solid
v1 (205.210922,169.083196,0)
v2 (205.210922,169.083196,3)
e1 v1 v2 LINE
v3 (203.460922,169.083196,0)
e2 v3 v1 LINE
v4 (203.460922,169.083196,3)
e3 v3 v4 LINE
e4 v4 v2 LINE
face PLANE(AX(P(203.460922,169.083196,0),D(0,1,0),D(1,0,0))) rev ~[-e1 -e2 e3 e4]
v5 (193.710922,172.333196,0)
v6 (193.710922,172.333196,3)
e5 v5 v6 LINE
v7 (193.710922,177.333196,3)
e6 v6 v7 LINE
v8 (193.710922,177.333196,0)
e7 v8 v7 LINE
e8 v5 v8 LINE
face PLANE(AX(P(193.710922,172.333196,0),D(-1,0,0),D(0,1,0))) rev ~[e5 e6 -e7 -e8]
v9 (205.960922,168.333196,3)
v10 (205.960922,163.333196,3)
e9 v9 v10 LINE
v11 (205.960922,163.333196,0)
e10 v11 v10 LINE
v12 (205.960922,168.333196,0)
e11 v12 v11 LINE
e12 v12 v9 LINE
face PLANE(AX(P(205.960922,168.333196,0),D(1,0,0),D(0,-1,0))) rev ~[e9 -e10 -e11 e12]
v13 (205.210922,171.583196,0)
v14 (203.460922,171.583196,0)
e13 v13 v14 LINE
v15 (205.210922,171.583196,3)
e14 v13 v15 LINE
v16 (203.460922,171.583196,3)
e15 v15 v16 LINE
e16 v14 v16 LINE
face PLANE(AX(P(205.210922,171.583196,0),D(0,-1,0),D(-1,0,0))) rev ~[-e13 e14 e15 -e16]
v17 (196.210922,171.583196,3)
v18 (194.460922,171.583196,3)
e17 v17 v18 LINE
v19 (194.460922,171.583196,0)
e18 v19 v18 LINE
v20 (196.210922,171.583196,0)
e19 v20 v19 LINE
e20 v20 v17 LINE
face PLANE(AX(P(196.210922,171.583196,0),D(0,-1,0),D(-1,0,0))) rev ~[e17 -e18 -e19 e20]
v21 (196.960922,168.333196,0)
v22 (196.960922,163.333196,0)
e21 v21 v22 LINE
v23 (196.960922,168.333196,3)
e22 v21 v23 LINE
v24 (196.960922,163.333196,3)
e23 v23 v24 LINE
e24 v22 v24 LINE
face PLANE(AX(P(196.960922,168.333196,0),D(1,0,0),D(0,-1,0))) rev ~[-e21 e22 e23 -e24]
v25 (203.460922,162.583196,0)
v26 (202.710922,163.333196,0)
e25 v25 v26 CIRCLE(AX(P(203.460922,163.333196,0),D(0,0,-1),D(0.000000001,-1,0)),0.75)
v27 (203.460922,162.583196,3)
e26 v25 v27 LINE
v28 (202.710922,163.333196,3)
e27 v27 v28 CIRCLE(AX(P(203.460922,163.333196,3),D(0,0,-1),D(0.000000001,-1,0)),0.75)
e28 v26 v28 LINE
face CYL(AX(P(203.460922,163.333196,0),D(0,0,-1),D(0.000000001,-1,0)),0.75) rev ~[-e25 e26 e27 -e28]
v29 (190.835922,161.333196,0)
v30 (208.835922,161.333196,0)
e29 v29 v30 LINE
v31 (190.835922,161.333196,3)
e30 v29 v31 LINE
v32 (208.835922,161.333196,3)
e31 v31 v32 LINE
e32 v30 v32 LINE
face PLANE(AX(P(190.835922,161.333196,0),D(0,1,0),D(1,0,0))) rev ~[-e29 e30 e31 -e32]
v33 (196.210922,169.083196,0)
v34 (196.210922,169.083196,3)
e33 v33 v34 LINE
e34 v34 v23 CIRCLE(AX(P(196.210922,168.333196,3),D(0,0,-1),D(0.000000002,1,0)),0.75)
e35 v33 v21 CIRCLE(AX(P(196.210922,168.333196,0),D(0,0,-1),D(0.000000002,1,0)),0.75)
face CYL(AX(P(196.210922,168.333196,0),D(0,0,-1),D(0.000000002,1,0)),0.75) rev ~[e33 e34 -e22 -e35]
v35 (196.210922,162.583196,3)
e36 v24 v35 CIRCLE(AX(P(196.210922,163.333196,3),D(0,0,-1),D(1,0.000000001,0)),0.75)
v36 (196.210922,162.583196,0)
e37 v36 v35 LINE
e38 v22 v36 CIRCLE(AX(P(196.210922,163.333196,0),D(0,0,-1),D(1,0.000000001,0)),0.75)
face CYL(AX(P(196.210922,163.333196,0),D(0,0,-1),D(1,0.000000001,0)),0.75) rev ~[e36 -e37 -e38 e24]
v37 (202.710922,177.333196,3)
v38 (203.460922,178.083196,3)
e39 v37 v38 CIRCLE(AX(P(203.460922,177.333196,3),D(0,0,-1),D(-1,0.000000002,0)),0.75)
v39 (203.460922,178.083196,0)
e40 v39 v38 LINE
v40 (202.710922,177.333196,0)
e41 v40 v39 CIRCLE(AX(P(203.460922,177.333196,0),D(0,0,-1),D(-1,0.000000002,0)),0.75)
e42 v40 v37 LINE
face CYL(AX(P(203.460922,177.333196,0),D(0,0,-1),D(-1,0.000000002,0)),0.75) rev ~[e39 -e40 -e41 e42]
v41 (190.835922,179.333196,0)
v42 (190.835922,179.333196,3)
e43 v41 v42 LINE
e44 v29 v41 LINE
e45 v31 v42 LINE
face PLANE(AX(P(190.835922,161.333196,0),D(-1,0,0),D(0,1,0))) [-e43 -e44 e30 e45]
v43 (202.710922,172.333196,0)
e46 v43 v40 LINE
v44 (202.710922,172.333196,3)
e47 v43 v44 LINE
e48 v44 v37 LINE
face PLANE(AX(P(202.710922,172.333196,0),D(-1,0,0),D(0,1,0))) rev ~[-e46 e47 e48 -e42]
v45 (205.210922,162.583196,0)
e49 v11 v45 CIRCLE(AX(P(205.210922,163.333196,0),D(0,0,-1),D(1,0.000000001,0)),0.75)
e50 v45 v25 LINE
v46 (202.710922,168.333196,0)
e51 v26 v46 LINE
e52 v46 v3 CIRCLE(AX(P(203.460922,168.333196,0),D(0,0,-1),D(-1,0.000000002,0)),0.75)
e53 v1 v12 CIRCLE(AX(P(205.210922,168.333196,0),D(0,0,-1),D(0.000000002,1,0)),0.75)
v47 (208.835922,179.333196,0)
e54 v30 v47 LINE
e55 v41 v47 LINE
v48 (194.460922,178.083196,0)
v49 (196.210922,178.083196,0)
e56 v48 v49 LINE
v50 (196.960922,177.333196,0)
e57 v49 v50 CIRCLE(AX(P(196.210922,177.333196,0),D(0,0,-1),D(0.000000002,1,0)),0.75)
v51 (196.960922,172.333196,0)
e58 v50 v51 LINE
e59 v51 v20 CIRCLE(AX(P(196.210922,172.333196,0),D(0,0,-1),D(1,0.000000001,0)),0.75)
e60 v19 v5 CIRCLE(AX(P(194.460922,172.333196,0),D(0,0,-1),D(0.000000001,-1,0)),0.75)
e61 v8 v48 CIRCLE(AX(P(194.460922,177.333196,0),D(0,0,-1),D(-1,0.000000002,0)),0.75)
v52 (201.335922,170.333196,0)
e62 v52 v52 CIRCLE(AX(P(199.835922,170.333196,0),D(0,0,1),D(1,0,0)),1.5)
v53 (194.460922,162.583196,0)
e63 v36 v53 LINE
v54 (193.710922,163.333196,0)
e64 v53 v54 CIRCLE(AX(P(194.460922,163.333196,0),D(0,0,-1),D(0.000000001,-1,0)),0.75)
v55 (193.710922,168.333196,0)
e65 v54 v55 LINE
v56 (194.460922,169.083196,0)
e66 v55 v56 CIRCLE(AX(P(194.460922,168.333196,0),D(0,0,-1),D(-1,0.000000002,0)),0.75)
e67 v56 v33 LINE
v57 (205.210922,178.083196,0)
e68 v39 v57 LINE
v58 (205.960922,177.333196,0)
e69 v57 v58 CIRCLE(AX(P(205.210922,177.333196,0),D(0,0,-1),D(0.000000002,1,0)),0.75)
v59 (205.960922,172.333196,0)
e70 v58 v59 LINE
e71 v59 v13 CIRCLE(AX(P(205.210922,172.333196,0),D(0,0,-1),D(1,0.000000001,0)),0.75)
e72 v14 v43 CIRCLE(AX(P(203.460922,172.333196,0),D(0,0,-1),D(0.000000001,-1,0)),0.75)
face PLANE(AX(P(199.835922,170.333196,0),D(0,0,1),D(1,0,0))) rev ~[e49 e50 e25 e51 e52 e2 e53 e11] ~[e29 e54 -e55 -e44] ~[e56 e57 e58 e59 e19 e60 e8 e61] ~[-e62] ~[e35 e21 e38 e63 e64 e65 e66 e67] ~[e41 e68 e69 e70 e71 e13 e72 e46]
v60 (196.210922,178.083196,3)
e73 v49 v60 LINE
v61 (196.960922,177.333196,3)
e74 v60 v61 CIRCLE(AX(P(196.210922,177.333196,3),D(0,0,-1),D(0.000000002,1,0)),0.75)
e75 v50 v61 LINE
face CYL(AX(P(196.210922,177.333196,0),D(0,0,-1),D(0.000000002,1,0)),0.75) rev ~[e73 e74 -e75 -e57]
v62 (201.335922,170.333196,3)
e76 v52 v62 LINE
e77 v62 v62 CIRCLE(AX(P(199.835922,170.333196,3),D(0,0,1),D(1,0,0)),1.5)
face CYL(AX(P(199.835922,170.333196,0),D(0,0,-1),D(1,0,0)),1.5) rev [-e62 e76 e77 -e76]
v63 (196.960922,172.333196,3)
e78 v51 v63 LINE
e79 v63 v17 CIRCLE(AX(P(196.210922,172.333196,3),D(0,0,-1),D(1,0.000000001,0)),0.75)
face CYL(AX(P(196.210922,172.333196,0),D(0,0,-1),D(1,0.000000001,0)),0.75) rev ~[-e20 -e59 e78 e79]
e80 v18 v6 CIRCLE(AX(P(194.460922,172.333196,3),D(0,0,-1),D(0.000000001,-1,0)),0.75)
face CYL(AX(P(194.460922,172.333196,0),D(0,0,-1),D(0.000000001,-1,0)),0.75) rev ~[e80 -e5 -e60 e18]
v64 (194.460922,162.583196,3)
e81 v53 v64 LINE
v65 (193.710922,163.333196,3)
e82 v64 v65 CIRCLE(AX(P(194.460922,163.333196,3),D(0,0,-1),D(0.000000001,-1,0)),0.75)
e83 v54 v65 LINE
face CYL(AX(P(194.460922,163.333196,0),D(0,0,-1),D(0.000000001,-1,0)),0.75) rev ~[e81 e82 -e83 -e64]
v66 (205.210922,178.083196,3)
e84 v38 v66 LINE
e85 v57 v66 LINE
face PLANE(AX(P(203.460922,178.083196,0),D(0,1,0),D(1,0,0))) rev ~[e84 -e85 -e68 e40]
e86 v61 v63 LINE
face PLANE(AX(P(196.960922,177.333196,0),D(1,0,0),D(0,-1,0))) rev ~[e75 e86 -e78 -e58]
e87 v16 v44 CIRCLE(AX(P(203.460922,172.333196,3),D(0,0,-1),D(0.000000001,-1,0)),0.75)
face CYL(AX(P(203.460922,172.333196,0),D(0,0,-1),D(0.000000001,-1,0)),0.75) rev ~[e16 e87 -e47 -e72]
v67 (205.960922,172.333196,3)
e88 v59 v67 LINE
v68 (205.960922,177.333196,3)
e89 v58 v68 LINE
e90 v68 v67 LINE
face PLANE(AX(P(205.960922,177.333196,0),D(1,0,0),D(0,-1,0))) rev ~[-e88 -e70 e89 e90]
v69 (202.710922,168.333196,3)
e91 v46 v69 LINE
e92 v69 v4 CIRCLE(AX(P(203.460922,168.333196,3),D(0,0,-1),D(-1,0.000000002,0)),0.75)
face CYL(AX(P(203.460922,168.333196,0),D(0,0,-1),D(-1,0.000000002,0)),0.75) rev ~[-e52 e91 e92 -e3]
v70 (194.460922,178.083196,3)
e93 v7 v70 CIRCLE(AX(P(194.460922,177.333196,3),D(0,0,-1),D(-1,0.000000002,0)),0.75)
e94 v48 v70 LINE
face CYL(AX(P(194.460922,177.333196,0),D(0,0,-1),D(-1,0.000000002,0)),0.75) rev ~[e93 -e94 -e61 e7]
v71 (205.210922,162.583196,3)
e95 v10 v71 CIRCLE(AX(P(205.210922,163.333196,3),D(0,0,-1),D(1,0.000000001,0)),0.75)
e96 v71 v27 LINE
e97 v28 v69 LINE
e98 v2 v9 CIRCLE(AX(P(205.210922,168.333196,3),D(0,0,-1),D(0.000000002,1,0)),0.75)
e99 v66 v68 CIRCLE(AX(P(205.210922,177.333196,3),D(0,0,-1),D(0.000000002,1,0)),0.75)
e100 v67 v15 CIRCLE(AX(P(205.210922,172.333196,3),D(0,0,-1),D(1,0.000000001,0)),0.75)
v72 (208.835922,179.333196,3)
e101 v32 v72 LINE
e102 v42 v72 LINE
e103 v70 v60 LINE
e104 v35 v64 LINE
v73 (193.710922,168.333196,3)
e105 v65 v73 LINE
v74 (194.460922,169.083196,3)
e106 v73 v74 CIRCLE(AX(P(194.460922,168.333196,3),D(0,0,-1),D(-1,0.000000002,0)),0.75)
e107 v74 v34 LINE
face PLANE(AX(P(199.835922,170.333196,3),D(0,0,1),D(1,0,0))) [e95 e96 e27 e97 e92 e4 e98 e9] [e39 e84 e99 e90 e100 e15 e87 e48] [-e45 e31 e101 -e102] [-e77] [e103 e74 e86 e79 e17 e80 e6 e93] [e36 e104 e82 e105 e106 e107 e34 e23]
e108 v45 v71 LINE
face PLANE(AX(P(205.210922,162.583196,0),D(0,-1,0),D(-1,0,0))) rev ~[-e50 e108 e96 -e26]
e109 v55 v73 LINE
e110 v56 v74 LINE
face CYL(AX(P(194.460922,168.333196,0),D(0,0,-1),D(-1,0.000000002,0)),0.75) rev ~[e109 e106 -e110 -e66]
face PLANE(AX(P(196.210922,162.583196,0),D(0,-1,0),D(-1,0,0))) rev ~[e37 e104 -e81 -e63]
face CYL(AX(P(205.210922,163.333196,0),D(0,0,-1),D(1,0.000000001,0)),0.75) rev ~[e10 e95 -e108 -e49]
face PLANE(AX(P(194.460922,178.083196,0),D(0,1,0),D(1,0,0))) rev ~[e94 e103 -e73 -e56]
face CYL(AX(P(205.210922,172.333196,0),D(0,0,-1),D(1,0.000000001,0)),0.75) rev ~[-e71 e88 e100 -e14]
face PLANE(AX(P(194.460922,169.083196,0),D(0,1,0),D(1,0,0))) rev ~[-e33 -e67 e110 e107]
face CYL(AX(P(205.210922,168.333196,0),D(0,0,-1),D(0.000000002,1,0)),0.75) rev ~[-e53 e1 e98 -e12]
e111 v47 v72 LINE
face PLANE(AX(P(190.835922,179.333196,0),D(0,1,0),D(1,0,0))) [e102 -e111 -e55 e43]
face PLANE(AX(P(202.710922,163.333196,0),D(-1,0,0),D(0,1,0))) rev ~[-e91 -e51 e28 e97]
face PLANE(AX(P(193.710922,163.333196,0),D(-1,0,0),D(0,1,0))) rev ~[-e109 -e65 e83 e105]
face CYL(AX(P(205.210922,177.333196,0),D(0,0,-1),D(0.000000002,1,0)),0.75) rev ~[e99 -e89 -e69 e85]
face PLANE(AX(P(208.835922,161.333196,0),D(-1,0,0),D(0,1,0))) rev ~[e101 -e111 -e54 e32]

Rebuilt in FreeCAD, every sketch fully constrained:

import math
import FreeCAD as App
import Part
import Sketcher

V = App.Vector

doc = App.newDocument("Part")
body = doc.addObject("PartDesign::Body", "Body")

sketch1 = doc.addObject("Sketcher::SketchObject", "Sketch")
body.addObject(sketch1)
sketch1.AttachmentSupport = (doc.XY_Plane, [""])
sketch1.MapMode = "FlatFace"
sketch1.addGeometry(Part.LineSegment(V(190.8, 179.3, 0), V(190.8, 161.3, 0)), False)
sketch1.addGeometry(Part.LineSegment(V(190.8, 161.3, 0), V(208.8, 161.3, 0)), False)
sketch1.addGeometry(Part.LineSegment(V(208.8, 161.3, 0), V(208.8, 179.3, 0)), False)
sketch1.addGeometry(Part.LineSegment(V(208.8, 179.3, 0), V(190.8, 179.3, 0)), False)
sketch1.addGeometry(Part.ArcOfCircle(Part.Circle(V(196.2, 168.3, 0), V(0, 0, 1), 0.8), math.radians(0), math.radians(90)), False)
sketch1.addGeometry(Part.LineSegment(V(197, 168.3, 0), V(197, 163.3, 0)), False)
sketch1.addGeometry(Part.ArcOfCircle(Part.Circle(V(196.2, 163.3, 0), V(0, 0, 1), 0.8), math.radians(-90), math.radians(0)), False)
sketch1.addGeometry(Part.LineSegment(V(196.2, 162.6, 0), V(194.5, 162.6, 0)), False)
sketch1.addGeometry(Part.ArcOfCircle(Part.Circle(V(194.5, 163.3, 0), V(0, 0, 1), 0.8), math.radians(180), math.radians(270)), False)
sketch1.addGeometry(Part.LineSegment(V(193.7, 163.3, 0), V(193.7, 168.3, 0)), False)
sketch1.addGeometry(Part.ArcOfCircle(Part.Circle(V(194.5, 168.3, 0), V(0, 0, 1), 0.8), math.radians(90), math.radians(180)), False)
sketch1.addGeometry(Part.LineSegment(V(194.5, 169.1, 0), V(196.2, 169.1, 0)), False)
sketch1.addGeometry(Part.ArcOfCircle(Part.Circle(V(205.2, 168.3, 0), V(0, 0, 1), 0.8), math.radians(0), math.radians(90)), False)
sketch1.addGeometry(Part.LineSegment(V(206, 168.3, 0), V(206, 163.3, 0)), False)
sketch1.addGeometry(Part.ArcOfCircle(Part.Circle(V(205.2, 163.3, 0), V(0, 0, 1), 0.8), math.radians(-90), math.radians(0)), False)
sketch1.addGeometry(Part.LineSegment(V(205.2, 162.6, 0), V(203.5, 162.6, 0)), False)
sketch1.addGeometry(Part.ArcOfCircle(Part.Circle(V(203.5, 163.3, 0), V(0, 0, 1), 0.8), math.radians(180), math.radians(270)), False)
sketch1.addGeometry(Part.LineSegment(V(202.7, 163.3, 0), V(202.7, 168.3, 0)), False)
sketch1.addGeometry(Part.ArcOfCircle(Part.Circle(V(203.5, 168.3, 0), V(0, 0, 1), 0.8), math.radians(90), math.radians(180)), False)
sketch1.addGeometry(Part.LineSegment(V(203.5, 169.1, 0), V(205.2, 169.1, 0)), False)
sketch1.addGeometry(Part.Circle(V(199.8, 170.3, 0), V(0, 0, 1), 1.5), False)
sketch1.addGeometry(Part.ArcOfCircle(Part.Circle(V(196.2, 177.3, 0), V(0, 0, 1), 0.8), math.radians(0), math.radians(90)), False)
sketch1.addGeometry(Part.LineSegment(V(197, 177.3, 0), V(197, 172.3, 0)), False)
sketch1.addGeometry(Part.ArcOfCircle(Part.Circle(V(196.2, 172.3, 0), V(0, 0, 1), 0.8), math.radians(-90), math.radians(0)), False)
sketch1.addGeometry(Part.LineSegment(V(196.2, 171.6, 0), V(194.5, 171.6, 0)), False)
sketch1.addGeometry(Part.ArcOfCircle(Part.Circle(V(194.5, 172.3, 0), V(0, 0, 1), 0.8), math.radians(180), math.radians(270)), False)
sketch1.addGeometry(Part.LineSegment(V(193.7, 172.3, 0), V(193.7, 177.3, 0)), False)
sketch1.addGeometry(Part.ArcOfCircle(Part.Circle(V(194.5, 177.3, 0), V(0, 0, 1), 0.8), math.radians(90), math.radians(180)), False)
sketch1.addGeometry(Part.LineSegment(V(194.5, 178.1, 0), V(196.2, 178.1, 0)), False)
sketch1.addGeometry(Part.ArcOfCircle(Part.Circle(V(203.5, 172.3, 0), V(0, 0, 1), 0.8), math.radians(180), math.radians(270)), False)
sketch1.addGeometry(Part.LineSegment(V(202.7, 172.3, 0), V(202.7, 177.3, 0)), False)
sketch1.addGeometry(Part.ArcOfCircle(Part.Circle(V(203.5, 177.3, 0), V(0, 0, 1), 0.8), math.radians(90), math.radians(180)), False)
sketch1.addGeometry(Part.LineSegment(V(203.5, 178.1, 0), V(205.2, 178.1, 0)), False)
sketch1.addGeometry(Part.ArcOfCircle(Part.Circle(V(205.2, 177.3, 0), V(0, 0, 1), 0.8), math.radians(0), math.radians(90)), False)
sketch1.addGeometry(Part.LineSegment(V(206, 177.3, 0), V(206, 172.3, 0)), False)
sketch1.addGeometry(Part.ArcOfCircle(Part.Circle(V(205.2, 172.3, 0), V(0, 0, 1), 0.8), math.radians(-90), math.radians(0)), False)
sketch1.addGeometry(Part.LineSegment(V(205.2, 171.6, 0), V(203.5, 171.6, 0)), False)
sketch1.addConstraint(Sketcher.Constraint("Coincident", 0, 2, 1, 1))
sketch1.addConstraint(Sketcher.Constraint("Coincident", 1, 2, 2, 1))
sketch1.addConstraint(Sketcher.Constraint("Coincident", 2, 2, 3, 1))
sketch1.addConstraint(Sketcher.Constraint("Coincident", 3, 2, 0, 1))
sketch1.addConstraint(Sketcher.Constraint("Tangent", 4, 1, 5, 1))
sketch1.addConstraint(Sketcher.Constraint("Tangent", 5, 2, 6, 2))
sketch1.addConstraint(Sketcher.Constraint("Tangent", 6, 1, 7, 1))
sketch1.addConstraint(Sketcher.Constraint("Tangent", 7, 2, 8, 2))
sketch1.addConstraint(Sketcher.Constraint("Tangent", 8, 1, 9, 1))
sketch1.addConstraint(Sketcher.Constraint("Tangent", 9, 2, 10, 2))
sketch1.addConstraint(Sketcher.Constraint("Tangent", 10, 1, 11, 1))
sketch1.addConstraint(Sketcher.Constraint("Tangent", 11, 2, 4, 2))
sketch1.addConstraint(Sketcher.Constraint("Tangent", 12, 1, 13, 1))
sketch1.addConstraint(Sketcher.Constraint("Tangent", 13, 2, 14, 2))
sketch1.addConstraint(Sketcher.Constraint("Tangent", 14, 1, 15, 1))
sketch1.addConstraint(Sketcher.Constraint("Tangent", 15, 2, 16, 2))
sketch1.addConstraint(Sketcher.Constraint("Tangent", 16, 1, 17, 1))
sketch1.addConstraint(Sketcher.Constraint("Tangent", 17, 2, 18, 2))
sketch1.addConstraint(Sketcher.Constraint("Tangent", 18, 1, 19, 1))
sketch1.addConstraint(Sketcher.Constraint("Tangent", 19, 2, 12, 2))
sketch1.addConstraint(Sketcher.Constraint("Tangent", 21, 1, 22, 1))
sketch1.addConstraint(Sketcher.Constraint("Tangent", 22, 2, 23, 2))
sketch1.addConstraint(Sketcher.Constraint("Tangent", 23, 1, 24, 1))
sketch1.addConstraint(Sketcher.Constraint("Tangent", 24, 2, 25, 2))
sketch1.addConstraint(Sketcher.Constraint("Tangent", 25, 1, 26, 1))
sketch1.addConstraint(Sketcher.Constraint("Tangent", 26, 2, 27, 2))
sketch1.addConstraint(Sketcher.Constraint("Tangent", 27, 1, 28, 1))
sketch1.addConstraint(Sketcher.Constraint("Tangent", 28, 2, 21, 2))
sketch1.addConstraint(Sketcher.Constraint("Tangent", 29, 1, 30, 1))
sketch1.addConstraint(Sketcher.Constraint("Tangent", 30, 2, 31, 2))
sketch1.addConstraint(Sketcher.Constraint("Tangent", 31, 1, 32, 1))
sketch1.addConstraint(Sketcher.Constraint("Tangent", 32, 2, 33, 2))
sketch1.addConstraint(Sketcher.Constraint("Tangent", 33, 1, 34, 1))
sketch1.addConstraint(Sketcher.Constraint("Tangent", 34, 2, 35, 2))
sketch1.addConstraint(Sketcher.Constraint("Tangent", 35, 1, 36, 1))
sketch1.addConstraint(Sketcher.Constraint("Tangent", 36, 2, 29, 2))
sketch1.addConstraint(Sketcher.Constraint("Vertical", 0))
sketch1.addConstraint(Sketcher.Constraint("Horizontal", 1))
sketch1.addConstraint(Sketcher.Constraint("Vertical", 2))
sketch1.addConstraint(Sketcher.Constraint("Horizontal", 3))
sketch1.addConstraint(Sketcher.Constraint("Vertical", 5))
sketch1.addConstraint(Sketcher.Constraint("Horizontal", 7))
sketch1.addConstraint(Sketcher.Constraint("Vertical", 9))
sketch1.addConstraint(Sketcher.Constraint("Horizontal", 11))
sketch1.addConstraint(Sketcher.Constraint("Vertical", 13))
sketch1.addConstraint(Sketcher.Constraint("Horizontal", 15))
sketch1.addConstraint(Sketcher.Constraint("Vertical", 17))
sketch1.addConstraint(Sketcher.Constraint("Horizontal", 19))
sketch1.addConstraint(Sketcher.Constraint("Vertical", 22))
sketch1.addConstraint(Sketcher.Constraint("Horizontal", 24))
sketch1.addConstraint(Sketcher.Constraint("Vertical", 26))
sketch1.addConstraint(Sketcher.Constraint("Horizontal", 28))
sketch1.addConstraint(Sketcher.Constraint("Vertical", 30))
sketch1.addConstraint(Sketcher.Constraint("Horizontal", 32))
sketch1.addConstraint(Sketcher.Constraint("Vertical", 34))
sketch1.addConstraint(Sketcher.Constraint("Horizontal", 36))
sketch1.addConstraint(Sketcher.Constraint("Equal", 4, 6))
sketch1.addConstraint(Sketcher.Constraint("Equal", 6, 8))
sketch1.addConstraint(Sketcher.Constraint("Equal", 8, 10))
sketch1.addConstraint(Sketcher.Constraint("Equal", 10, 12))
sketch1.addConstraint(Sketcher.Constraint("Equal", 12, 14))
sketch1.addConstraint(Sketcher.Constraint("Equal", 14, 16))
sketch1.addConstraint(Sketcher.Constraint("Equal", 16, 18))
sketch1.addConstraint(Sketcher.Constraint("Equal", 18, 21))
sketch1.addConstraint(Sketcher.Constraint("Equal", 21, 23))
sketch1.addConstraint(Sketcher.Constraint("Equal", 23, 25))
sketch1.addConstraint(Sketcher.Constraint("Equal", 25, 27))
sketch1.addConstraint(Sketcher.Constraint("Equal", 27, 29))
sketch1.addConstraint(Sketcher.Constraint("Equal", 29, 31))
sketch1.addConstraint(Sketcher.Constraint("Equal", 31, 33))
sketch1.addConstraint(Sketcher.Constraint("Equal", 33, 35))
sketch1.addConstraint(Sketcher.Constraint("Horizontal", 10, 3, 12, 3))
sketch1.addConstraint(Sketcher.Constraint("Horizontal", 8, 3, 14, 3))
sketch1.addConstraint(Sketcher.Constraint("Horizontal", 25, 3, 29, 3))
sketch1.addConstraint(Sketcher.Constraint("Horizontal", 27, 3, 31, 3))
sketch1.addConstraint(Sketcher.Constraint("Vertical", 6, 3, 21, 3))
sketch1.addConstraint(Sketcher.Constraint("Vertical", 10, 3, 25, 3))
sketch1.addConstraint(Sketcher.Constraint("Vertical", 18, 3, 29, 3))
sketch1.addConstraint(Sketcher.Constraint("Vertical", 14, 3, 33, 3))
sketch1.addConstraint(Sketcher.Constraint("Equal", 11, 15))
sketch1.addConstraint(Sketcher.Constraint("Equal", 3, 0))
sketch1.addConstraint(Sketcher.Constraint("Equal", 17, 22))
sketch1.addConstraint(Sketcher.Constraint("Diameter", 20, 3.0))
sketch1.addConstraint(Sketcher.Constraint("DistanceX", 1, 1, 1, 2, 18.0))
sketch1.addConstraint(Sketcher.Constraint("DistanceY", 5, 2, 5, 1, 5.0))
sketch1.addConstraint(Sketcher.Constraint("Radius", 4, 0.75))
sketch1.addConstraint(Sketcher.Constraint("DistanceX", 4, 3, 12, 3, 9.0))
sketch1.addConstraint(Sketcher.Constraint("DistanceY", 18, 3, 20, 3, 2.0))
sketch1.addConstraint(Sketcher.Constraint("DistanceY", 20, 3, 21, 3, 7.0))
sketch1.addConstraint(Sketcher.Constraint("DistanceY", 0, 2, 8, 3, 2.0))
sketch1.addConstraint(Sketcher.Constraint("DistanceX", 7, 2, 7, 1, 1.75))
sketch1.addConstraint(Sketcher.Constraint("DistanceX", 20, 3, 18, 3, 3.625))
sketch1.addConstraint(Sketcher.Constraint("DistanceX", 0, 2, 8, 3, 3.625))
sketch1.addConstraint(Sketcher.Constraint("DistanceX", -1, 1, 4, 3, 196.210922))
sketch1.addConstraint(Sketcher.Constraint("DistanceY", -1, 1, 4, 3, 168.333196))
pad1 = doc.addObject("PartDesign::Pad", "Pad")
body.addObject(pad1)
pad1.Profile = sketch1
pad1.Length = 3

doc.recompute()
